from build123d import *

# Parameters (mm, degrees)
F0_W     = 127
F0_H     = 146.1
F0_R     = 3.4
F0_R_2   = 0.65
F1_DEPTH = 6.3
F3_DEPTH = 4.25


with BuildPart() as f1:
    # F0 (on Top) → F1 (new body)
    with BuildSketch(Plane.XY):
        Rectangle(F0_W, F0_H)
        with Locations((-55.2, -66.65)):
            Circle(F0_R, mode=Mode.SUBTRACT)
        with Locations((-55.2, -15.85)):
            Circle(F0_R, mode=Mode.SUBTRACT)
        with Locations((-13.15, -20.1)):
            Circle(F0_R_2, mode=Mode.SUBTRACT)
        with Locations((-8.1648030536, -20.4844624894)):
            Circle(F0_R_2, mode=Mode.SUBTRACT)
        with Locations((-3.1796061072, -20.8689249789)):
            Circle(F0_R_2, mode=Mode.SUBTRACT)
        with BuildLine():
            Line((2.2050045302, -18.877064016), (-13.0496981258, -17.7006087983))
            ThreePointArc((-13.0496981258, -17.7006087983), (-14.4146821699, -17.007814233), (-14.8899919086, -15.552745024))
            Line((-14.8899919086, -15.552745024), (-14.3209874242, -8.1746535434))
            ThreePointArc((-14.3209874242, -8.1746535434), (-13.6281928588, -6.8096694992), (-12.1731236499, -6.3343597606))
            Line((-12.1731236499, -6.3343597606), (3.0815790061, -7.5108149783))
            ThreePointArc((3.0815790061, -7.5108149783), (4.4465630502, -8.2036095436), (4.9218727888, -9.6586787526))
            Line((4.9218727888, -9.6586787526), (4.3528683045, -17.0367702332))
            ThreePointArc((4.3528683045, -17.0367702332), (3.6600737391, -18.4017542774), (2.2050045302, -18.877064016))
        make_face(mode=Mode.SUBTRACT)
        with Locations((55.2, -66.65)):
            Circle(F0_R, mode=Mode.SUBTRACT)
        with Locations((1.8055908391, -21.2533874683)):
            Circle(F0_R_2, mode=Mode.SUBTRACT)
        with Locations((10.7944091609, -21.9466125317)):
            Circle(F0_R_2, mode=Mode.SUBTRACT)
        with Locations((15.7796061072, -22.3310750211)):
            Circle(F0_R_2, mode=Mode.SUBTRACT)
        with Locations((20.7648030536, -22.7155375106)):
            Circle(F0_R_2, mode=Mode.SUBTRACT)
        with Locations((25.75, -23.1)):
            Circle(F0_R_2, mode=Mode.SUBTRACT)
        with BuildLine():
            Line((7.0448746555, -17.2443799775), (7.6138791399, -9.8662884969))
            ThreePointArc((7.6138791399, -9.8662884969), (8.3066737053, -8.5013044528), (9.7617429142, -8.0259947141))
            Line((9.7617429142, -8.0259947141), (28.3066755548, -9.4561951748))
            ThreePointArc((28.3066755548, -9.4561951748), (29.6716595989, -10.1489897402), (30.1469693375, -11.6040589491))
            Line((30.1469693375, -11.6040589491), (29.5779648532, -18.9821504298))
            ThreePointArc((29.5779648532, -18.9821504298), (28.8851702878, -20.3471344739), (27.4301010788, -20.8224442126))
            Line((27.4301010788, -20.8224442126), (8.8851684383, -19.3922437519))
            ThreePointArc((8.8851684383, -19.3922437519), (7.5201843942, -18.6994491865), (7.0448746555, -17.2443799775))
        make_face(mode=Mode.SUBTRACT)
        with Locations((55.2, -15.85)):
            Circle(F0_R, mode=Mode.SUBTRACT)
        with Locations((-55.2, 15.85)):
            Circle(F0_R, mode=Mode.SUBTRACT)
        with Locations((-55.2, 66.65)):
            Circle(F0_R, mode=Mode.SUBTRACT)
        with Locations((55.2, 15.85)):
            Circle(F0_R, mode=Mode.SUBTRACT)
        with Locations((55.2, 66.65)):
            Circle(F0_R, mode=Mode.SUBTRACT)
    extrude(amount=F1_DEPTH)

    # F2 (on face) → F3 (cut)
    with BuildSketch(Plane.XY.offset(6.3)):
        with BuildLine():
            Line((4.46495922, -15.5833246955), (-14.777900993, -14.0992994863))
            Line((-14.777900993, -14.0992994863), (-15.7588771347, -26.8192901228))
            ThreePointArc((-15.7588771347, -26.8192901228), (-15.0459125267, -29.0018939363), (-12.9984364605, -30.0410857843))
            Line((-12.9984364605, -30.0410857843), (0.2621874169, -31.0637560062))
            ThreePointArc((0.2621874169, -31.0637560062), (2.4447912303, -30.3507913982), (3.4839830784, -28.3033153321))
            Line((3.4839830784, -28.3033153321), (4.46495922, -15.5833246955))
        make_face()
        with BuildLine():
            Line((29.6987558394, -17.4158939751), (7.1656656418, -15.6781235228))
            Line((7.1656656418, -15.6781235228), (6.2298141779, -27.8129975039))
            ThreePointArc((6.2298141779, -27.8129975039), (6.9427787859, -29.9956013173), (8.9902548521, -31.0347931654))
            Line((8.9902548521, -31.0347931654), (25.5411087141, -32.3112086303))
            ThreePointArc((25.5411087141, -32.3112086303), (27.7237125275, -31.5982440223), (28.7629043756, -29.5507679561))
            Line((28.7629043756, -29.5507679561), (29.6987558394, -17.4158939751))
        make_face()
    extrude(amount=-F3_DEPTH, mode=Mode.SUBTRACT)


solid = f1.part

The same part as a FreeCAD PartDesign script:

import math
import FreeCAD as App
import Part
import Sketcher

doc = App.newDocument("Part")
body = doc.addObject("PartDesign::Body", "Body")

sketch1 = body.newObject("Sketcher::SketchObject", "Sketch")
sketch1.AttachmentSupport = (doc.getObject("XY_Plane"), [""])
sketch1.MapMode = "FlatFace"
sketch1.addGeometry(Part.LineSegment(App.Vector(-63.5, 73, 0), App.Vector(-63.5, -73, 0)), False)
sketch1.addGeometry(Part.LineSegment(App.Vector(-63.5, -73, 0), App.Vector(63.5, -73, 0)), False)
sketch1.addGeometry(Part.LineSegment(App.Vector(63.5, -73, 0), App.Vector(63.5, 73, 0)), False)
sketch1.addGeometry(Part.LineSegment(App.Vector(63.5, 73, 0), App.Vector(-63.5, 73, 0)), False)
sketch1.addGeometry(Part.Circle(App.Vector(-55.2, -66.7, 0), App.Vector(0, 0, 1), 3.4), False)
sketch1.addGeometry(Part.Circle(App.Vector(-55.2, -15.8, 0), App.Vector(0, 0, 1), 3.4), False)
sketch1.addGeometry(Part.Circle(App.Vector(-13.2, -20.1, 0), App.Vector(0, 0, 1), 0.7), False)
sketch1.addGeometry(Part.Circle(App.Vector(-8.2, -20.5, 0), App.Vector(0, 0, 1), 0.7), False)
sketch1.addGeometry(Part.Circle(App.Vector(-3.2, -20.9, 0), App.Vector(0, 0, 1), 0.7), False)
sketch1.addGeometry(Part.ArcOfCircle(Part.Circle(App.Vector(2.4, -16.9, 0), App.Vector(0, 0, 1), 2), math.radians(-94), math.radians(-4)), False)
sketch1.addGeometry(Part.LineSegment(App.Vector(2.2, -18.9, 0), App.Vector(-13, -17.7, 0)), False)
sketch1.addGeometry(Part.ArcOfCircle(Part.Circle(App.Vector(-12.9, -15.7, 0), App.Vector(0, 0, 1), 2), math.radians(176), math.radians(266)), False)
sketch1.addGeometry(Part.LineSegment(App.Vector(-14.9, -15.6, 0), App.Vector(-14.3, -8.2, 0)), False)
sketch1.addGeometry(Part.ArcOfCircle(Part.Circle(App.Vector(-12.3, -8.3, 0), App.Vector(0, 0, 1), 2), math.radians(86), math.radians(176)), False)
sketch1.addGeometry(Part.LineSegment(App.Vector(-12.2, -6.3, 0), App.Vector(3.1, -7.5, 0)), False)
sketch1.addGeometry(Part.ArcOfCircle(Part.Circle(App.Vector(2.9, -9.5, 0), App.Vector(0, 0, 1), 2), math.radians(-4), math.radians(86)), False)
sketch1.addGeometry(Part.LineSegment(App.Vector(4.9, -9.7, 0), App.Vector(4.4, -17, 0)), False)
sketch1.addGeometry(Part.Circle(App.Vector(55.2, -66.7, 0), App.Vector(0, 0, 1), 3.4), False)
sketch1.addGeometry(Part.Circle(App.Vector(1.8, -21.3, 0), App.Vector(0, 0, 1), 0.7), False)
sketch1.addGeometry(Part.Circle(App.Vector(10.8, -21.9, 0), App.Vector(0, 0, 1), 0.7), False)
sketch1.addGeometry(Part.Circle(App.Vector(15.8, -22.3, 0), App.Vector(0, 0, 1), 0.7), False)
sketch1.addGeometry(Part.Circle(App.Vector(20.8, -22.7, 0), App.Vector(0, 0, 1), 0.7), False)
sketch1.addGeometry(Part.Circle(App.Vector(25.8, -23.1, 0), App.Vector(0, 0, 1), 0.7), False)
sketch1.addGeometry(Part.ArcOfCircle(Part.Circle(App.Vector(9, -17.4, 0), App.Vector(0, 0, 1), 2), math.radians(176), math.radians(266)), False)
sketch1.addGeometry(Part.LineSegment(App.Vector(7, -17.2, 0), App.Vector(7.6, -9.9, 0)), False)
sketch1.addGeometry(Part.ArcOfCircle(Part.Circle(App.Vector(9.6, -10, 0), App.Vector(0, 0, 1), 2), math.radians(86), math.radians(176)), False)
sketch1.addGeometry(Part.LineSegment(App.Vector(9.8, -8, 0), App.Vector(28.3, -9.5, 0)), False)
sketch1.addGeometry(Part.ArcOfCircle(Part.Circle(App.Vector(28.2, -11.5, 0), App.Vector(0, 0, 1), 2), math.radians(-4), math.radians(86)), False)
sketch1.addGeometry(Part.LineSegment(App.Vector(30.1, -11.6, 0), App.Vector(29.6, -19, 0)), False)
sketch1.addGeometry(Part.ArcOfCircle(Part.Circle(App.Vector(27.6, -18.8, 0), App.Vector(0, 0, 1), 2), math.radians(-94), math.radians(-4)), False)
sketch1.addGeometry(Part.LineSegment(App.Vector(27.4, -20.8, 0), App.Vector(8.9, -19.4, 0)), False)
sketch1.addGeometry(Part.Circle(App.Vector(55.2, -15.8, 0), App.Vector(0, 0, 1), 3.4), False)
sketch1.addGeometry(Part.Circle(App.Vector(-55.2, 15.8, 0), App.Vector(0, 0, 1), 3.4), False)
sketch1.addGeometry(Part.Circle(App.Vector(-55.2, 66.7, 0), App.Vector(0, 0, 1), 3.4), False)
sketch1.addGeometry(Part.Circle(App.Vector(55.2, 15.8, 0), App.Vector(0, 0, 1), 3.4), False)
sketch1.addGeometry(Part.Circle(App.Vector(55.2, 66.7, 0), App.Vector(0, 0, 1), 3.4), False)
sketch1.addConstraint(Sketcher.Constraint("Coincident", 0, 2, 1, 1))
sketch1.addConstraint(Sketcher.Constraint("Coincident", 1, 2, 2, 1))
sketch1.addConstraint(Sketcher.Constraint("Coincident", 2, 2, 3, 1))
sketch1.addConstraint(Sketcher.Constraint("Coincident", 3, 2, 0, 1))
sketch1.addConstraint(Sketcher.Constraint("Tangent", 9, 1, 10, 1))
sketch1.addConstraint(Sketcher.Constraint("Tangent", 10, 2, 11, 2))
sketch1.addConstraint(Sketcher.Constraint("Tangent", 11, 1, 12, 1))
sketch1.addConstraint(Sketcher.Constraint("Tangent", 12, 2, 13, 2))
sketch1.addConstraint(Sketcher.Constraint("Tangent", 13, 1, 14, 1))
sketch1.addConstraint(Sketcher.Constraint("Tangent", 14, 2, 15, 2))
sketch1.addConstraint(Sketcher.Constraint("Tangent", 15, 1, 16, 1))
sketch1.addConstraint(Sketcher.Constraint("Tangent", 16, 2, 9, 2))
sketch1.addConstraint(Sketcher.Constraint("Tangent", 23, 1, 24, 1))
sketch1.addConstraint(Sketcher.Constraint("Tangent", 24, 2, 25, 2))
sketch1.addConstraint(Sketcher.Constraint("Tangent", 25, 1, 26, 1))
sketch1.addConstraint(Sketcher.Constraint("Tangent", 26, 2, 27, 2))
sketch1.addConstraint(Sketcher.Constraint("Tangent", 27, 1, 28, 1))
sketch1.addConstraint(Sketcher.Constraint("Tangent", 28, 2, 29, 2))
sketch1.addConstraint(Sketcher.Constraint("Tangent", 29, 1, 30, 1))
sketch1.addConstraint(Sketcher.Constraint("Tangent", 30, 2, 23, 2))
sketch1.addConstraint(Sketcher.Constraint("Vertical", 0))
sketch1.addConstraint(Sketcher.Constraint("Horizontal", 1))
sketch1.addConstraint(Sketcher.Constraint("Vertical", 2))
sketch1.addConstraint(Sketcher.Constraint("Horizontal", 3))
sketch1.addConstraint(Sketcher.Constraint("Equal", 4, 5))
sketch1.addConstraint(Sketcher.Constraint("Equal", 6, 7))
sketch1.addConstraint(Sketcher.Constraint("Equal", 7, 8))
sketch1.addConstraint(Sketcher.Constraint("Equal", 9, 11))
sketch1.addConstraint(Sketcher.Constraint("Equal", 11, 13))
sketch1.addConstraint(Sketcher.Constraint("Equal", 13, 15))
sketch1.addConstraint(Sketcher.Constraint("Equal", 5, 17))
sketch1.addConstraint(Sketcher.Constraint("Equal", 8, 18))
sketch1.addConstraint(Sketcher.Constraint("Equal", 18, 19))
sketch1.addConstraint(Sketcher.Constraint("Equal", 19, 20))
sketch1.addConstraint(Sketcher.Constraint("Equal", 20, 21))
sketch1.addConstraint(Sketcher.Constraint("Equal", 21, 22))
sketch1.addConstraint(Sketcher.Constraint("Equal", 15, 23))
sketch1.addConstraint(Sketcher.Constraint("Equal", 23, 25))
sketch1.addConstraint(Sketcher.Constraint("Equal", 25, 27))
sketch1.addConstraint(Sketcher.Constraint("Equal", 27, 29))
sketch1.addConstraint(Sketcher.Constraint("Equal", 17, 31))
sketch1.addConstraint(Sketcher.Constraint("Equal", 31, 32))
sketch1.addConstraint(Sketcher.Constraint("Equal", 32, 33))
sketch1.addConstraint(Sketcher.Constraint("Equal", 33, 34))
sketch1.addConstraint(Sketcher.Constraint("Equal", 34, 35))
sketch1.addConstraint(Sketcher.Constraint("Symmetric", 31, 3, 32, 3, -1, 1))
sketch1.addConstraint(Sketcher.Constraint("Symmetric", 17, 3, 33, 3, -1, 1))
sketch1.addConstraint(Sketcher.Constraint("Symmetric", 5, 3, 34, 3, -1, 1))
sketch1.addConstraint(Sketcher.Constraint("Symmetric", 4, 3, 35, 3, -1, 1))
sketch1.addConstraint(Sketcher.Constraint("Symmetric", 0, 2, 2, 2, -1, 1))
sketch1.addConstraint(Sketcher.Constraint("Symmetric", 4, 3, 17, 3, -2))
sketch1.addConstraint(Sketcher.Constraint("Symmetric", 5, 3, 31, 3, -2))
sketch1.addConstraint(Sketcher.Constraint("Perpendicular", 10, 12))
sketch1.addConstraint(Sketcher.Constraint("Perpendicular", 12, 14))
sketch1.addConstraint(Sketcher.Constraint("Perpendicular", 14, 16))
sketch1.addConstraint(Sketcher.Constraint("Parallel", 16, 24))
sketch1.addConstraint(Sketcher.Constraint("Perpendicular", 24, 26))
sketch1.addConstraint(Sketcher.Constraint("Perpendicular", 26, 28))
sketch1.addConstraint(Sketcher.Constraint("Perpendicular", 28, 30))
sketch1.addConstraint(Sketcher.Constraint("Vertical", 4, 3, 5, 3))
sketch1.addConstraint(Sketcher.Constraint("Equal", 16, 24))
sketch1.addConstraint(Sketcher.Constraint("Radius", 9, 2.0))
sketch1.addConstraint(Sketcher.Constraint("Diameter", 4, 6.8))
sketch1.addConstraint(Sketcher.Constraint("Diameter", 6, 1.3))
sketch1.addConstraint(Sketcher.Constraint("DistanceX", 1, 1, 1, 2, 127.0))
sketch1.addConstraint(Sketcher.Constraint("DistanceY", 0, 2, 0, 1, 146.1))
sketch1.addConstraint(Sketcher.Constraint("Distance", 10, 15.3))
sketch1.addConstraint(Sketcher.Constraint("Distance", 12, 7.4))
sketch1.addConstraint(Sketcher.Constraint("Distance", 26, 18.6))
sketch1.addConstraint(Sketcher.Constraint("DistanceX", 4, 3, -1, 1, 55.2))
sketch1.addConstraint(Sketcher.Constraint("DistanceY", 6, 3, -1, 1, 20.1))
sketch1.addConstraint(Sketcher.Constraint("DistanceY", 22, 3, -1, 1, 23.1))
sketch1.addConstraint(Sketcher.Constraint("DistanceY", 4, 3, 5, 3, 50.8))
sketch1.addConstraint(Sketcher.Constraint("DistanceY", 5, 3, 32, 3, 31.7))
sketch1.addConstraint(Sketcher.Constraint("DistanceX", 6, 3, -1, 1, 13.15))
sketch1.addConstraint(Sketcher.Constraint("DistanceX", -1, 1, 22, 3, 25.75))
sketch1.addConstraint(Sketcher.Constraint("DistanceX", 10, 2, -1, 1, 13.049698))
sketch1.addConstraint(Sketcher.Constraint("DistanceX", -1, 1, 29, 1, 27.430101))
sketch1.addConstraint(Sketcher.Constraint("DistanceX", 13, 3, 9, 3, 14.685698))
sketch1.addConstraint(Sketcher.Constraint("DistanceX", 8, 3, 15, 3, 6.1074))
sketch1.addConstraint(Sketcher.Constraint("DistanceX", 18, 3, 9, 3, 0.553199))
sketch1.addConstraint(Sketcher.Constraint("DistanceY", 20, 3, 27, 3, 10.880801))
sketch1.addConstraint(Sketcher.Constraint("DistanceY", 9, 1, 23, 3, 1.478899))
sketch1.addConstraint(Sketcher.Constraint("DistanceX", 21, 3, 29, 1, 6.665298))
sketch1.addConstraint(Sketcher.Constraint("DistanceY", 11, 3, -1, 1, 15.70653))
sketch1.addConstraint(Sketcher.Constraint("DistanceX", -1, 1, 19, 3, 10.794409))
sketch1.addConstraint(Sketcher.Constraint("DistanceY", 8, 3, 9, 3, 3.98594))
sketch1.addConstraint(Sketcher.Constraint("DistanceX", 11, 3, 7, 3, 4.73111))
sketch1.addConstraint(Sketcher.Constraint("DistanceY", 7, 3, 15, 3, 10.979569))
sketch1.addConstraint(Sketcher.Constraint("DistanceY", 19, 3, 15, 3, 12.441719))
sketch1.addConstraint(Sketcher.Constraint("DistanceY", 21, 3, 18, 3, 1.46215))
sketch1.addConstraint(Sketcher.Constraint("DistanceX", 20, 3, 29, 3, 11.80428))
sketch1.addConstraint(Sketcher.Constraint("DistanceY", 21, 3, 27, 1, 11.111479))
pad1 = body.newObject("PartDesign::Pad", "Pad")
pad1.Profile = sketch1
pad1.Length = 6.3

sketch2 = body.newObject("Sketcher::SketchObject", "Sketch001")
sketch2.AttachmentSupport = (doc.getObject("XY_Plane"), [""])
sketch2.MapMode = "FlatFace"
sketch2.AttachmentOffset = App.Placement(App.Vector(0, 0, 6.3), App.Rotation())
sketch2.addGeometry(Part.LineSegment(App.Vector(4.5, -15.6, 0), App.Vector(-14.8, -14.1, 0)), False)
sketch2.addGeometry(Part.LineSegment(App.Vector(-14.8, -14.1, 0), App.Vector(-15.8, -26.8, 0)), False)
sketch2.addGeometry(Part.ArcOfCircle(Part.Circle(App.Vector(-12.8, -27, 0), App.Vector(0, 0, 1), 3), math.radians(176), math.radians(266)), False)
sketch2.addGeometry(Part.LineSegment(App.Vector(-13, -30, 0), App.Vector(0.3, -31.1, 0)), False)
sketch2.addGeometry(Part.ArcOfCircle(Part.Circle(App.Vector(0.5, -28.1, 0), App.Vector(0, 0, 1), 3), math.radians(-94), math.radians(-4)), False)
sketch2.addGeometry(Part.LineSegment(App.Vector(3.5, -28.3, 0), App.Vector(4.5, -15.6, 0)), False)
sketch2.addGeometry(Part.LineSegment(App.Vector(29.7, -17.4, 0), App.Vector(7.2, -15.7, 0)), False)
sketch2.addGeometry(Part.LineSegment(App.Vector(7.2, -15.7, 0), App.Vector(6.2, -27.8, 0)), False)
sketch2.addGeometry(Part.ArcOfCircle(Part.Circle(App.Vector(9.2, -28, 0), App.Vector(0, 0, 1), 3), math.radians(176), math.radians(266)), False)
sketch2.addGeometry(Part.LineSegment(App.Vector(9, -31, 0), App.Vector(25.5, -32.3, 0)), False)
sketch2.addGeometry(Part.ArcOfCircle(Part.Circle(App.Vector(25.8, -29.3, 0), App.Vector(0, 0, 1), 3), math.radians(-94), math.radians(-4)), False)
sketch2.addGeometry(Part.LineSegment(App.Vector(28.8, -29.6, 0), App.Vector(29.7, -17.4, 0)), False)
sketch2.addConstraint(Sketcher.Constraint("Coincident", 0, 2, 1, 1))
sketch2.addConstraint(Sketcher.Constraint("Tangent", 1, 2, 2, 1))
sketch2.addConstraint(Sketcher.Constraint("Tangent", 2, 2, 3, 1))
sketch2.addConstraint(Sketcher.Constraint("Tangent", 3, 2, 4, 1))
sketch2.addConstraint(Sketcher.Constraint("Tangent", 4, 2, 5, 1))
sketch2.addConstraint(Sketcher.Constraint("Coincident", 5, 2, 0, 1))
sketch2.addConstraint(Sketcher.Constraint("Coincident", 6, 2, 7, 1))
sketch2.addConstraint(Sketcher.Constraint("Tangent", 7, 2, 8, 1))
sketch2.addConstraint(Sketcher.Constraint("Tangent", 8, 2, 9, 1))
sketch2.addConstraint(Sketcher.Constraint("Tangent", 9, 2, 10, 1))
sketch2.addConstraint(Sketcher.Constraint("Tangent", 10, 2, 11, 1))
sketch2.addConstraint(Sketcher.Constraint("Coincident", 11, 2, 6, 1))
sketch2.addConstraint(Sketcher.Constraint("Equal", 2, 4))
sketch2.addConstraint(Sketcher.Constraint("Equal", 4, 8))
sketch2.addConstraint(Sketcher.Constraint("Equal", 8, 10))
sketch2.addConstraint(Sketcher.Constraint("Perpendicular", 0, 1))
sketch2.addConstraint(Sketcher.Constraint("Perpendicular", 1, 3))
sketch2.addConstraint(Sketcher.Constraint("Perpendicular", 3, 5))
sketch2.addConstraint(Sketcher.Constraint("Perpendicular", 5, 6))
sketch2.addConstraint(Sketcher.Constraint("Perpendicular", 6, 7))
sketch2.addConstraint(Sketcher.Constraint("Perpendicular", 7, 9))
sketch2.addConstraint(Sketcher.Constraint("Perpendicular", 9, 11))
sketch2.addConstraint(Sketcher.Constraint("Radius", 2, 3.0))
sketch2.addConstraint(Sketcher.Constraint("Distance", 0, 19.3))
sketch2.addConstraint(Sketcher.Constraint("Distance", 6, 22.6))
sketch2.addConstraint(Sketcher.Constraint("DistanceX", 0, 2, -1, 1, 14.777901))
sketch2.addConstraint(Sketcher.Constraint("DistanceY", 0, 2, -1, 1, 14.099299))
sketch2.addConstraint(Sketcher.Constraint("DistanceY", 10, 3, 1, 2, 2.5008))
sketch2.addConstraint(Sketcher.Constraint("DistanceX", 2, 2, 4, 3, 13.491301))
sketch2.addConstraint(Sketcher.Constraint("DistanceY", 6, 2, 5, 2, 0.094799))
sketch2.addConstraint(Sketcher.Constraint("DistanceX", 4, 3, 6, 2, 6.672801))
sketch2.addConstraint(Sketcher.Constraint("Distance", 1, 12.757761))
pocket1 = body.newObject("PartDesign::Pocket", "Pocket")
pocket1.Profile = sketch2
pocket1.Length = 4.25

doc.recompute()
